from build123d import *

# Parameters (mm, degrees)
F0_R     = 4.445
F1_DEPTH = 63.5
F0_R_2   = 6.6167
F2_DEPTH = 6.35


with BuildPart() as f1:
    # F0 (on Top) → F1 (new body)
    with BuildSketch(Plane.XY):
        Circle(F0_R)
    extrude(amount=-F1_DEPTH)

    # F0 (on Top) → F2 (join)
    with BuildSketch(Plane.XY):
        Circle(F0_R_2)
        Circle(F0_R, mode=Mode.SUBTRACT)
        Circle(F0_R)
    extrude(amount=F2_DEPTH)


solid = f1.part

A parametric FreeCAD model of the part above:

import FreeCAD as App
import Part
import Sketcher
from FreeCAD import Vector
Q = App.Units.Quantity

doc = App.newDocument("Part")
params = doc.addObject("Spreadsheet::Sheet", "Params")
for row, (alias, value) in enumerate([
    ("sketch1_diameter", "0.35 in"),
    ("pad1_length", "2.5 in"),
    ("sketch2_diameter", "0.521 in"),
    ("pad2_length", "0.25 in"),
], start=1):
    params.set(f"A{row}", alias)
    params.set(f"B{row}", "=" + value)
    params.setAlias(f"B{row}", alias)

body = doc.addObject("PartDesign::Body", "Body")

# Sketch on XY plane
sketch1 = body.newObject("Sketcher::SketchObject", "Sketch")
sketch1.AttachmentSupport = (doc.getObject("XY_Plane"), [""])
sketch1.MapMode = "FlatFace"
sketch1.addGeometry(Part.Circle(Vector(0, 0, 0), Vector(0, 0, 1), 4.4), False)
sketch1.addConstraint(Sketcher.Constraint("Coincident", 0, 3, -1, 1))
sketch1.addConstraint(Sketcher.Constraint("Diameter", 0, Q("0.35 in")))
sketch1.setExpression("Constraints[1]", "Params.sketch1_diameter")
pad1 = body.newObject("PartDesign::Pad", "Pad")
pad1.Profile = sketch1
pad1.setExpression("Length", "Params.pad1_length")
pad1.Reversed = True

# Sketch on XY plane
sketch2 = body.newObject("Sketcher::SketchObject", "Sketch001")
sketch2.AttachmentSupport = (doc.getObject("XY_Plane"), [""])
sketch2.MapMode = "FlatFace"
sketch2.addGeometry(Part.Circle(Vector(0, 0, 0), Vector(0, 0, 1), 7), False)
sketch2.addConstraint(Sketcher.Constraint("Coincident", 0, 3, -1, 1))
sketch2.addConstraint(Sketcher.Constraint("Diameter", 0, Q("0.521 in")))
sketch2.setExpression("Constraints[1]", "Params.sketch2_diameter")
pad2 = body.newObject("PartDesign::Pad", "Pad001")
pad2.Profile = sketch2
pad2.setExpression("Length", "Params.pad2_length")

doc.recompute()
